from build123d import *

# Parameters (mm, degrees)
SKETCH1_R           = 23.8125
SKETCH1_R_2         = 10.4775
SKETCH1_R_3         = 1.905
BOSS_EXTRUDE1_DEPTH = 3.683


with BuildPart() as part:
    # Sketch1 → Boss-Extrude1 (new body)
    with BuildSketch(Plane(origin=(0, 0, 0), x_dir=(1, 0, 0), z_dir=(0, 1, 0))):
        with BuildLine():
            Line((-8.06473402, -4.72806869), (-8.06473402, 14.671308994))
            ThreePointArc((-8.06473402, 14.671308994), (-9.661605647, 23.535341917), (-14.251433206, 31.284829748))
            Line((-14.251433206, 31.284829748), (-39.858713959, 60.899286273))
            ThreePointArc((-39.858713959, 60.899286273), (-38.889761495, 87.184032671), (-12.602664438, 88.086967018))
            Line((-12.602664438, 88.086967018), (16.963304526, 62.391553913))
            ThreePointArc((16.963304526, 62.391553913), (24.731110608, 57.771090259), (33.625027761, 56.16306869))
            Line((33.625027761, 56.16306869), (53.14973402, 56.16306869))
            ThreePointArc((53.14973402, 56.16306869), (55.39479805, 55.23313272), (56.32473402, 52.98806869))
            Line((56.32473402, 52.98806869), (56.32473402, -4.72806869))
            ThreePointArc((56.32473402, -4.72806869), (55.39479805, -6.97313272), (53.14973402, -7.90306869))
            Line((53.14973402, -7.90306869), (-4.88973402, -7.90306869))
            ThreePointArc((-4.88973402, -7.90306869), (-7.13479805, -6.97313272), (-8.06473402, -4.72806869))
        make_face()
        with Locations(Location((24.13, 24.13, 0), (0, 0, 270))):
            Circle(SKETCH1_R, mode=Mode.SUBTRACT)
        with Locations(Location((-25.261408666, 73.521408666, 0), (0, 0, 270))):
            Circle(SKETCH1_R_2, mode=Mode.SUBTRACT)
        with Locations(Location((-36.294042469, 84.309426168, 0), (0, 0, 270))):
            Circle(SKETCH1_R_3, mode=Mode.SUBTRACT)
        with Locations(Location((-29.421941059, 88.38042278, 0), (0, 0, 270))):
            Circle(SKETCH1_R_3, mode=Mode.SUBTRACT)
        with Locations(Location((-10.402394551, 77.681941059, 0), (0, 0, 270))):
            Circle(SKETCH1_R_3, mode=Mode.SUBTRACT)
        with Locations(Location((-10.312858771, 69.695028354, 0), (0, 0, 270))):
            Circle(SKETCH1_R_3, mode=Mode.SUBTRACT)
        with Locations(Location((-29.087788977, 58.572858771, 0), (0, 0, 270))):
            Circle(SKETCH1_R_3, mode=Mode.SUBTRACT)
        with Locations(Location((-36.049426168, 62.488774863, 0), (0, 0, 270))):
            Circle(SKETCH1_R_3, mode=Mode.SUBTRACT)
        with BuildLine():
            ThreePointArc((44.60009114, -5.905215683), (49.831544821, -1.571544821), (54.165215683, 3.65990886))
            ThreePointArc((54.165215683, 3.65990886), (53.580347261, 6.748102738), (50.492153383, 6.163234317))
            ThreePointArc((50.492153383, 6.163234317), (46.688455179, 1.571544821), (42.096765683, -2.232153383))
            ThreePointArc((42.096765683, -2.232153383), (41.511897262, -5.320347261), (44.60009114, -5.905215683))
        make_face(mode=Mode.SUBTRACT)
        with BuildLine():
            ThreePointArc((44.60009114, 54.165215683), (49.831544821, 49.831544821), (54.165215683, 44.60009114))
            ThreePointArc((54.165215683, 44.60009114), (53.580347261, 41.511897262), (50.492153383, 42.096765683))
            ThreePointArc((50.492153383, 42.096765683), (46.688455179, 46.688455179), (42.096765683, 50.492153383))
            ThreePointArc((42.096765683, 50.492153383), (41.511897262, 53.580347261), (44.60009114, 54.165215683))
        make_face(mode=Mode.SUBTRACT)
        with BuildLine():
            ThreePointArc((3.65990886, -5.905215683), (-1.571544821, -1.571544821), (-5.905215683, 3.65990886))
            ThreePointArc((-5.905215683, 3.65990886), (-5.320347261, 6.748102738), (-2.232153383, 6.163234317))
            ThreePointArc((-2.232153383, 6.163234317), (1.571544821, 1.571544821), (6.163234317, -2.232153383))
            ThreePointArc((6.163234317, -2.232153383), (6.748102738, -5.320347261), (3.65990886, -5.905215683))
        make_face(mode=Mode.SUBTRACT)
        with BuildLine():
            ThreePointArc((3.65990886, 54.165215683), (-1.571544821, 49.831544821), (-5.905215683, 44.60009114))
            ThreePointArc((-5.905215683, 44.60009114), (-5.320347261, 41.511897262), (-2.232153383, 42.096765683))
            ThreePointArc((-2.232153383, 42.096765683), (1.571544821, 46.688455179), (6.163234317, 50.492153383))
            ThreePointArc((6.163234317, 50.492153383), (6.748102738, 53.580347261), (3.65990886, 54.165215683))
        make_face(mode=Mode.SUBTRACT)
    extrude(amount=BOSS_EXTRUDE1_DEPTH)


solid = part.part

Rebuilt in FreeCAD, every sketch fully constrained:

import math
import FreeCAD as App
import Part
import Sketcher

V = App.Vector
Q = App.Units.Quantity

doc = App.newDocument("Part")
body = doc.addObject("PartDesign::Body", "Body")

# Sketch on XZ plane
sketch1 = body.newObject("Sketcher::SketchObject", "Sketch")
sketch1.AttachmentSupport = (doc.getObject("XZ_Plane"), [""])
sketch1.MapMode = "FlatFace"
sketch1.addGeometry(Part.LineSegment(V(-8.1, -14.7, 0), V(-8.1, 4.7, 0)), False)
sketch1.addGeometry(Part.ArcOfCircle(Part.Circle(V(-4.9, 4.7, 0), V(0, 0, 1), 3.2), math.radians(90), math.radians(180)), False)
sketch1.addGeometry(Part.LineSegment(V(-4.9, 7.9, 0), V(53.1, 7.9, 0)), False)
sketch1.addGeometry(Part.ArcOfCircle(Part.Circle(V(53.1, 4.7, 0), V(0, 0, 1), 3.2), math.radians(0), math.radians(90)), False)
sketch1.addGeometry(Part.LineSegment(V(56.3, 4.7, 0), V(56.3, -53, 0)), False)
sketch1.addGeometry(Part.ArcOfCircle(Part.Circle(V(53.1, -53, 0), V(0, 0, 1), 3.2), math.radians(-90), math.radians(0)), False)
sketch1.addGeometry(Part.LineSegment(V(53.1, -56.2, 0), V(33.6, -56.2, 0)), False)
sketch1.addGeometry(Part.ArcOfCircle(Part.Circle(V(33.6, -81.6, 0), V(0, 0, 1), 25.4), math.radians(90), math.radians(131)), False)
sketch1.addGeometry(Part.LineSegment(V(17, -62.4, 0), V(-12.6, -88.1, 0)), False)
sketch1.addGeometry(Part.ArcOfCircle(Part.Circle(V(-25.3, -73.5, 0), V(0, 0, 1), 19.3), math.radians(139), math.radians(311)), False)
sketch1.addGeometry(Part.LineSegment(V(-39.9, -60.9, 0), V(-14.3, -31.3, 0)), False)
sketch1.addGeometry(Part.ArcOfCircle(Part.Circle(V(-33.5, -14.7, 0), V(0, 0, 1), 25.4), math.radians(-41), math.radians(0)), False)
sketch1.addGeometry(Part.ArcOfCircle(Part.Circle(V(43.3, 4.1, 0), V(0, 0, 1), 2.2), math.radians(56), math.radians(236)), False)
sketch1.addGeometry(Part.ArcOfCircle(Part.Circle(V(24.1, -24.1, 0), V(0, 0, 1), 31.9), math.radians(34), math.radians(56)), False)
sketch1.addGeometry(Part.ArcOfCircle(Part.Circle(V(52.3, -4.9, 0), V(0, 0, 1), 2.2), math.radians(-146), math.radians(34)), False)
sketch1.addGeometry(Part.ArcOfCircle(Part.Circle(V(24.1, -24.1, 0), V(0, 0, 1), 36.3), math.radians(34), math.radians(56)), False)
sketch1.addGeometry(Part.Circle(V(24.1, -24.1, 0), V(0, 0, 1), 23.8), False)
sketch1.addGeometry(Part.ArcOfCircle(Part.Circle(V(24.1, -24.1, 0), V(0, 0, 1), 36.3), math.radians(124), math.radians(146)), False)
sketch1.addGeometry(Part.ArcOfCircle(Part.Circle(V(-4.1, -4.9, 0), V(0, 0, 1), 2.2), math.radians(146), math.radians(326)), False)
sketch1.addGeometry(Part.ArcOfCircle(Part.Circle(V(24.1, -24.1, 0), V(0, 0, 1), 31.9), math.radians(124), math.radians(146)), False)
sketch1.addGeometry(Part.ArcOfCircle(Part.Circle(V(4.9, 4.1, 0), V(0, 0, 1), 2.2), math.radians(-56), math.radians(124)), False)
sketch1.addGeometry(Part.ArcOfCircle(Part.Circle(V(24.1, -24.1, 0), V(0, 0, 1), 36.3), math.radians(-56), math.radians(-34)), False)
sketch1.addGeometry(Part.ArcOfCircle(Part.Circle(V(52.3, -43.3, 0), V(0, 0, 1), 2.2), math.radians(-34), math.radians(146)), False)
sketch1.addGeometry(Part.ArcOfCircle(Part.Circle(V(24.1, -24.1, 0), V(0, 0, 1), 31.9), math.radians(-56), math.radians(-34)), False)
sketch1.addGeometry(Part.ArcOfCircle(Part.Circle(V(43.3, -52.3, 0), V(0, 0, 1), 2.2), math.radians(124), math.radians(304)), False)
sketch1.addGeometry(Part.ArcOfCircle(Part.Circle(V(4.9, -52.3, 0), V(0, 0, 1), 2.2), math.radians(-124), math.radians(56)), False)
sketch1.addGeometry(Part.ArcOfCircle(Part.Circle(V(24.1, -24.1, 0), V(0, 0, 1), 31.9), math.radians(-146), math.radians(-124)), False)
sketch1.addGeometry(Part.ArcOfCircle(Part.Circle(V(-4.1, -43.3, 0), V(0, 0, 1), 2.2), math.radians(34), math.radians(214)), False)
sketch1.addGeometry(Part.ArcOfCircle(Part.Circle(V(24.1, -24.1, 0), V(0, 0, 1), 36.3), math.radians(-146), math.radians(-124)), False)
sketch1.addGeometry(Part.Circle(V(-29.1, -58.6, 0), V(0, 0, 1), 1.9), False)
sketch1.addGeometry(Part.Circle(V(-36, -62.5, 0), V(0, 0, 1), 1.9), False)
sketch1.addGeometry(Part.Circle(V(-10.3, -69.7, 0), V(0, 0, 1), 1.9), False)
sketch1.addGeometry(Part.Circle(V(-10.4, -77.7, 0), V(0, 0, 1), 1.9), False)
sketch1.addGeometry(Part.Circle(V(-25.3, -73.5, 0), V(0, 0, 1), 10.5), False)
sketch1.addGeometry(Part.Circle(V(-29.4, -88.4, 0), V(0, 0, 1), 1.9), False)
sketch1.addGeometry(Part.Circle(V(-36.3, -84.3, 0), V(0, 0, 1), 1.9), False)
sketch1.addConstraint(Sketcher.Constraint("Tangent", 0, 2, 1, 2))
sketch1.addConstraint(Sketcher.Constraint("Tangent", 1, 1, 2, 1))
sketch1.addConstraint(Sketcher.Constraint("Tangent", 2, 2, 3, 2))
sketch1.addConstraint(Sketcher.Constraint("Tangent", 3, 1, 4, 1))
sketch1.addConstraint(Sketcher.Constraint("Tangent", 4, 2, 5, 2))
sketch1.addConstraint(Sketcher.Constraint("Tangent", 5, 1, 6, 1))
sketch1.addConstraint(Sketcher.Constraint("Tangent", 6, 2, 7, 1))
sketch1.addConstraint(Sketcher.Constraint("Tangent", 7, 2, 8, 1))
sketch1.addConstraint(Sketcher.Constraint("Tangent", 8, 2, 9, 2))
sketch1.addConstraint(Sketcher.Constraint("Tangent", 9, 1, 10, 1))
sketch1.addConstraint(Sketcher.Constraint("Tangent", 10, 2, 11, 1))
sketch1.addConstraint(Sketcher.Constraint("Tangent", 11, 2, 0, 1))
sketch1.addConstraint(Sketcher.Constraint("Tangent", 12, 2, 13, 2))
sketch1.addConstraint(Sketcher.Constraint("Tangent", 13, 1, 14, 1))
sketch1.addConstraint(Sketcher.Constraint("Tangent", 14, 2, 15, 1))
sketch1.addConstraint(Sketcher.Constraint("Tangent", 15, 2, 12, 1))
sketch1.addConstraint(Sketcher.Constraint("Tangent", 17, 2, 18, 1))
sketch1.addConstraint(Sketcher.Constraint("Tangent", 18, 2, 19, 2))
sketch1.addConstraint(Sketcher.Constraint("Tangent", 19, 1, 20, 1))
sketch1.addConstraint(Sketcher.Constraint("Tangent", 20, 2, 17, 1))
sketch1.addConstraint(Sketcher.Constraint("Tangent", 21, 2, 22, 1))
sketch1.addConstraint(Sketcher.Constraint("Tangent", 22, 2, 23, 2))
sketch1.addConstraint(Sketcher.Constraint("Tangent", 23, 1, 24, 1))
sketch1.addConstraint(Sketcher.Constraint("Tangent", 24, 2, 21, 1))
sketch1.addConstraint(Sketcher.Constraint("Tangent", 25, 2, 26, 2))
sketch1.addConstraint(Sketcher.Constraint("Tangent", 26, 1, 27, 1))
sketch1.addConstraint(Sketcher.Constraint("Tangent", 27, 2, 28, 1))
sketch1.addConstraint(Sketcher.Constraint("Tangent", 28, 2, 25, 1))
sketch1.addConstraint(Sketcher.Constraint("Vertical", 0))
sketch1.addConstraint(Sketcher.Constraint("Horizontal", 2))
sketch1.addConstraint(Sketcher.Constraint("Vertical", 4))
sketch1.addConstraint(Sketcher.Constraint("Horizontal", 6))
sketch1.addConstraint(Sketcher.Constraint("Coincident", 15, 3, 13, 3))
sketch1.addConstraint(Sketcher.Constraint("Coincident", 16, 3, 13, 3))
sketch1.addConstraint(Sketcher.Constraint("Coincident", 17, 3, 13, 3))
sketch1.addConstraint(Sketcher.Constraint("Coincident", 19, 3, 13, 3))
sketch1.addConstraint(Sketcher.Constraint("Coincident", 21, 3, 13, 3))
sketch1.addConstraint(Sketcher.Constraint("Coincident", 23, 3, 13, 3))
sketch1.addConstraint(Sketcher.Constraint("Coincident", 26, 3, 13, 3))
sketch1.addConstraint(Sketcher.Constraint("Coincident", 28, 3, 13, 3))
sketch1.addConstraint(Sketcher.Constraint("Coincident", 33, 3, 9, 3))
sketch1.addConstraint(Sketcher.Constraint("Equal", 1, 3))
sketch1.addConstraint(Sketcher.Constraint("Equal", 3, 5))
sketch1.addConstraint(Sketcher.Constraint("Equal", 7, 11))
sketch1.addConstraint(Sketcher.Constraint("Equal", 15, 17))
sketch1.addConstraint(Sketcher.Constraint("Equal", 14, 18))
sketch1.addConstraint(Sketcher.Constraint("Equal", 17, 21))
sketch1.addConstraint(Sketcher.Constraint("Equal", 20, 22))
sketch1.addConstraint(Sketcher.Constraint("Equal", 24, 25))
sketch1.addConstraint(Sketcher.Constraint("Equal", 23, 26))
sketch1.addConstraint(Sketcher.Constraint("Equal", 29, 30))
sketch1.addConstraint(Sketcher.Constraint("Equal", 30, 31))
sketch1.addConstraint(Sketcher.Constraint("Equal", 31, 32))
sketch1.addConstraint(Sketcher.Constraint("Equal", 32, 34))
sketch1.addConstraint(Sketcher.Constraint("Equal", 34, 35))
sketch1.addConstraint(Sketcher.Constraint("Horizontal", 14, 3, 18, 3))
sketch1.addConstraint(Sketcher.Constraint("Horizontal", 12, 3, 20, 3))
sketch1.addConstraint(Sketcher.Constraint("Horizontal", 24, 3, 25, 3))
sketch1.addConstraint(Sketcher.Constraint("Horizontal", 22, 3, 27, 3))
sketch1.addConstraint(Sketcher.Constraint("Vertical", 14, 3, 22, 3))
sketch1.addConstraint(Sketcher.Constraint("Vertical", 12, 3, 24, 3))
sketch1.addConstraint(Sketcher.Constraint("Radius", 7, Q("1 in")))
sketch1.addConstraint(Sketcher.Constraint("Diameter", 29, Q("0.15 in")))
sketch1.addConstraint(Sketcher.Constraint("Diameter", 16, Q("1.875 in")))
sketch1.addConstraint(Sketcher.Constraint("Diameter", 33, Q("0.825 in")))
sketch1.addConstraint(Sketcher.Constraint("Radius", 1, Q("0.125 in")))
sketch1.addConstraint(Sketcher.Constraint("Radius", 12, Q("0.0875 in")))
sketch1.addConstraint(Sketcher.Constraint("DistanceX", -1, 1, 13, 3, Q("0.95 in")))
sketch1.addConstraint(Sketcher.Constraint("DistanceY", 13, 3, -1, 1, Q("0.95 in")))
sketch1.addConstraint(Sketcher.Constraint("Radius", 9, Q("19.29765 mm")))
sketch1.addConstraint(Sketcher.Constraint("Radius", 13, Q("31.902473 mm")))
sketch1.addConstraint(Sketcher.Constraint("DistanceY", 34, 3, 32, 3, Q("0.4212001 in")))
sketch1.addConstraint(Sketcher.Constraint("DistanceX", 15, 2, 3, 3, Q("0.3366001 in")))
sketch1.addConstraint(Sketcher.Constraint("DistanceX", 1, 3, 20, 2, Q("0.3366001 in")))
sketch1.addConstraint(Sketcher.Constraint("DistanceX", 10, 2, 26, 1, Q("0.4732 in")))
sketch1.addConstraint(Sketcher.Constraint("DistanceX", 2, 1, 2, 2, Q("58.039468 mm")))
sketch1.addConstraint(Sketcher.Constraint("DistanceY", 9, 3, 11, 3, Q("58.8501 mm")))
sketch1.addConstraint(Sketcher.Constraint("DistanceX", 7, 3, 12, 3, Q("9.723401 mm")))
sketch1.addConstraint(Sketcher.Constraint("DistanceY", 31, 3, 27, 3, Q("26.3466 mm")))
sketch1.addConstraint(Sketcher.Constraint("DistanceX", 35, 3, 34, 3, Q("6.872101 mm")))
sketch1.addConstraint(Sketcher.Constraint("DistanceY", 27, 3, 10, 2, Q("12.063599 mm")))
sketch1.addConstraint(Sketcher.Constraint("DistanceX", 11, 3, 10, 2, Q("19.213301 mm")))
sketch1.addConstraint(Sketcher.Constraint("DistanceY", 7, 2, 25, 2, Q("11.899401 mm")))
sketch1.addConstraint(Sketcher.Constraint("DistanceY", 0, 1, 0, 2, Q("19.399378 mm")))
sketch1.addConstraint(Sketcher.Constraint("DistanceX", 29, 3, -1, 1, Q("29.087789 mm")))
sketch1.addConstraint(Sketcher.Constraint("DistanceY", 29, 3, -1, 1, Q("58.572859 mm")))
sketch1.addConstraint(Sketcher.Constraint("DistanceX", 31, 3, -1, 1, Q("10.312859 mm")))
sketch1.addConstraint(Sketcher.Constraint("DistanceY", 32, 3, -1, 1, Q("77.681941 mm")))
sketch1.addConstraint(Sketcher.Constraint("DistanceX", 34, 3, -1, 1, Q("29.421941 mm")))
sketch1.addConstraint(Sketcher.Constraint("DistanceX", 30, 3, 27, 3, Q("31.980742 mm")))
sketch1.addConstraint(Sketcher.Constraint("DistanceY", 30, 3, 25, 3, Q("10.16009 mm")))
sketch1.addConstraint(Sketcher.Constraint("DistanceX", 30, 3, 32, 3, Q("25.647032 mm")))
sketch1.addConstraint(Sketcher.Constraint("DistanceY", 35, 3, 30, 3, Q("21.820651 mm")))
pad1 = body.newObject("PartDesign::Pad", "Pad")
pad1.Profile = sketch1
pad1.Length = Q("0.145 in")
pad1.Reversed = True

doc.recompute()
